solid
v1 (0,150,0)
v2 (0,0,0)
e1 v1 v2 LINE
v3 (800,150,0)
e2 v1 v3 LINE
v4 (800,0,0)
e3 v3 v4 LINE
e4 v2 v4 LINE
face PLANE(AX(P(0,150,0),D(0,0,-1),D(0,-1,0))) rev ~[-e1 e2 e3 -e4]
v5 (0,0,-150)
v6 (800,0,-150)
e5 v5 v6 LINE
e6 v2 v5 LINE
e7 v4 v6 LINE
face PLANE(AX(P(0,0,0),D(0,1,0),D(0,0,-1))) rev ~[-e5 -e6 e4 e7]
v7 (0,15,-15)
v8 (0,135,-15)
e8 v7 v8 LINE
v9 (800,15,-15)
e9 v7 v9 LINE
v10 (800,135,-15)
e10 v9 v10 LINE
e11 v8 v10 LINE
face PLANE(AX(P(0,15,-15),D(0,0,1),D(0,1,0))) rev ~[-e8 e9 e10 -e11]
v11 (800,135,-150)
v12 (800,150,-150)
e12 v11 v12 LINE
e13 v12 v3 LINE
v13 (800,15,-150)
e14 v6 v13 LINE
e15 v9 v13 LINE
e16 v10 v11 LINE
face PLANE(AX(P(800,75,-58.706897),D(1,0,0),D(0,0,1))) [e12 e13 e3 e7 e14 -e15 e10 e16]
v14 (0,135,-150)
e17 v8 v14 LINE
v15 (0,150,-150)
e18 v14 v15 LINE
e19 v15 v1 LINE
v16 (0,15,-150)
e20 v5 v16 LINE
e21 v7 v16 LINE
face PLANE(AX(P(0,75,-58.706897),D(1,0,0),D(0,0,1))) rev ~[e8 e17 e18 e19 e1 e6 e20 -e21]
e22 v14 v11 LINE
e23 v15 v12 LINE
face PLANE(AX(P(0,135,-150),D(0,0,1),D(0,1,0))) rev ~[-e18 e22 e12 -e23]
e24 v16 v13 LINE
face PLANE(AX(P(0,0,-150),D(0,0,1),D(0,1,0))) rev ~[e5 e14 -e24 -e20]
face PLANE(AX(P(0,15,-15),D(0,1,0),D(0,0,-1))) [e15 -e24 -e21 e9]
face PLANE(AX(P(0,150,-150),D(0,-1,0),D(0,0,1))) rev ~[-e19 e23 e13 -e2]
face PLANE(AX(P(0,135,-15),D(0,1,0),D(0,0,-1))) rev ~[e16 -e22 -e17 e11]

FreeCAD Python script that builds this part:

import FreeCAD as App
import Part
import Sketcher
Q = App.Units.Quantity


def add_polygon(sketch, points):
    """Adds a closed chain of lines whose ends are joined by coincident constraints."""
    first, n = sketch.GeometryCount, len(points)
    for a, b in zip(points, points[1:] + points[:1]):
        sketch.addGeometry(Part.LineSegment(App.Vector(*a, 0), App.Vector(*b, 0)), False)
    for i in range(n):
        sketch.addConstraint(Sketcher.Constraint("Coincident", first + i, 2, first + (i + 1) % n, 1))

doc = App.newDocument("Part")
params = doc.addObject("Spreadsheet::Sheet", "Params")
for row, (alias, value) in enumerate([
    ("sketch1_width", "15 mm"),
    ("sketch1_width2", "150 mm"),
    ("sketch1_height", "135 mm"),
    ("pad1_length", "800 mm"),
], start=1):
    params.set(f"A{row}", alias)
    params.set(f"B{row}", "=" + value)
    params.setAlias(f"B{row}", alias)

body = doc.addObject("PartDesign::Body", "Body")

# Sketch on YZ plane
sketch1 = doc.addObject("Sketcher::SketchObject", "Sketch")
body.addObject(sketch1)
sketch1.AttachmentSupport = (doc.YZ_Plane, [""])
sketch1.MapMode = "FlatFace"
add_polygon(sketch1, [(0, 0), (0, -150), (15, -150), (15, -15), (135, -15), (135, -150), (150, -150), (150, 0)])  # lines 0-7
sketch1.addConstraint([
    Sketcher.Constraint("Vertical", 0),
    Sketcher.Constraint("Horizontal", 1),
    Sketcher.Constraint("Vertical", 2),
    Sketcher.Constraint("Horizontal", 3),
    Sketcher.Constraint("Vertical", 4),
    Sketcher.Constraint("Horizontal", 5),
    Sketcher.Constraint("Vertical", 6),
    Sketcher.Constraint("Horizontal", 7),
    Sketcher.Constraint("Coincident", 7, 2, -1, 1),
    Sketcher.Constraint("Horizontal", 1, 2, 4, 2),
    Sketcher.Constraint("Equal", 1, 5),
    Sketcher.Constraint("Equal", 7, 0),
    Sketcher.Constraint("DistanceX", 1, 1, 1, 2, Q("15 mm")),
    Sketcher.Constraint("DistanceX", 7, 2, 7, 1, Q("150 mm")),
    Sketcher.Constraint("DistanceY", 2, 1, 2, 2, Q("135 mm")),
])
sketch1.setExpression("Constraints[20]", "Params.sketch1_width")
sketch1.setExpression("Constraints[21]", "Params.sketch1_width2")
sketch1.setExpression("Constraints[22]", "Params.sketch1_height")
pad1 = doc.addObject("PartDesign::Pad", "Pad")
body.addObject(pad1)
pad1.Profile = sketch1
pad1.setExpression("Length", "Params.pad1_length")

doc.recompute()
